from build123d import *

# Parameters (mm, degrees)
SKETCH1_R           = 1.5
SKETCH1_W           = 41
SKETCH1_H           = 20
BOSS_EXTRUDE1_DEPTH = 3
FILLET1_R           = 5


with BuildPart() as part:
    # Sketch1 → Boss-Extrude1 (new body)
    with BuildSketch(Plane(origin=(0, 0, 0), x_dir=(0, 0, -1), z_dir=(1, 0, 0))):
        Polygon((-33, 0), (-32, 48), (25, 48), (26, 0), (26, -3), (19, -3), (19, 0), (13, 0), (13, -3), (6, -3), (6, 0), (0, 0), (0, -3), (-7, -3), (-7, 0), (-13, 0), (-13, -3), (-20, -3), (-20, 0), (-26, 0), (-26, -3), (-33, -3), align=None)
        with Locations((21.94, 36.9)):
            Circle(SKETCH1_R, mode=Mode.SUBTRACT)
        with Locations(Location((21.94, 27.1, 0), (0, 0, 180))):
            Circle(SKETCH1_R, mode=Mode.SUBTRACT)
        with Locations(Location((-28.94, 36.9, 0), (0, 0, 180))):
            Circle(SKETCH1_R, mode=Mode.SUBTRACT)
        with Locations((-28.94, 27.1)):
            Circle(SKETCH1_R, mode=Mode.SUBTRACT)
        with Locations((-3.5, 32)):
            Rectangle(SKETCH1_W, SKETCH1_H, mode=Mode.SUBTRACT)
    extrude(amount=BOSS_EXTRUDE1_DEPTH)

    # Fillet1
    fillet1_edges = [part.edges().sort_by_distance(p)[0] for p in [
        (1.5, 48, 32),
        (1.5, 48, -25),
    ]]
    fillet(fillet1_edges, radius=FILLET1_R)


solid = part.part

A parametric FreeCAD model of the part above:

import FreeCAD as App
import Part
import Sketcher

V = App.Vector


def edges_at(feature, points):
    """Names of the edges that pass closest to the given points."""
    edges = feature.Shape.Edges
    near = lambda p: min(range(len(edges)), key=lambda i: edges[i].distToShape(Part.Vertex(*p))[0])
    return sorted({f"Edge{near(p) + 1}" for p in points})


def add_polygon(sketch, points):
    """Adds a closed chain of lines whose ends are joined by coincident constraints."""
    first, n = sketch.GeometryCount, len(points)
    for a, b in zip(points, points[1:] + points[:1]):
        sketch.addGeometry(Part.LineSegment(App.Vector(*a, 0), App.Vector(*b, 0)), False)
    for i in range(n):
        sketch.addConstraint(Sketcher.Constraint("Coincident", first + i, 2, first + (i + 1) % n, 1))

doc = App.newDocument("Part")
body = doc.addObject("PartDesign::Body", "Body")

sketch1 = body.newObject("Sketcher::SketchObject", "Sketch")
sketch1.AttachmentSupport = (doc.getObject("YZ_Plane"), [""])
sketch1.MapMode = "FlatFace"
add_polygon(sketch1, [(48, 32), (0, 33), (-3, 33), (-3, 26), (0, 26), (0, 20), (-3, 20), (-3, 13), (0, 13), (0, 7), (-3, 7), (-3, 0), (0, 0), (0, -6), (-3, -6), (-3, -13), (0, -13), (0, -19), (-3, -19), (-3, -26), (0, -26), (48, -25)])
sketch1.addGeometry(Part.Circle(V(27.1, -21.9, 0), V(0, 0, 1), 1.5), False)
sketch1.addGeometry(Part.Circle(V(27.1, 28.9, 0), V(0, 0, 1), 1.5), False)
sketch1.addGeometry(Part.Circle(V(36.9, -21.9, 0), V(0, 0, 1), 1.5), False)
add_polygon(sketch1, [(22, 24), (42, 24), (42, -17), (22, -17)])
sketch1.addGeometry(Part.Circle(V(36.9, 28.9, 0), V(0, 0, 1), 1.5), False)
sketch1.addConstraint([
    Sketcher.Constraint("Horizontal", 1),
    Sketcher.Constraint("Vertical", 2),
    Sketcher.Constraint("Horizontal", 3),
    Sketcher.Constraint("Vertical", 4),
    Sketcher.Constraint("Horizontal", 5),
    Sketcher.Constraint("Vertical", 6),
    Sketcher.Constraint("Horizontal", 7),
    Sketcher.Constraint("Vertical", 8),
    Sketcher.Constraint("Horizontal", 9),
    Sketcher.Constraint("Vertical", 10),
    Sketcher.Constraint("Horizontal", 11),
    Sketcher.Constraint("Vertical", 12),
    Sketcher.Constraint("Horizontal", 13),
    Sketcher.Constraint("Vertical", 14),
    Sketcher.Constraint("Horizontal", 15),
    Sketcher.Constraint("Vertical", 16),
    Sketcher.Constraint("Horizontal", 17),
    Sketcher.Constraint("Vertical", 18),
    Sketcher.Constraint("Horizontal", 19),
    Sketcher.Constraint("Vertical", 21),
    Sketcher.Constraint("Horizontal", 25),
    Sketcher.Constraint("Vertical", 26),
    Sketcher.Constraint("Horizontal", 27),
    Sketcher.Constraint("Vertical", 28),
    Sketcher.Constraint("Coincident", 11, 2, -1, 1),
    Sketcher.Constraint("Equal", 22, 23),
    Sketcher.Constraint("Equal", 23, 24),
    Sketcher.Constraint("Equal", 24, 29),
    Sketcher.Constraint("Symmetric", 7, 2, 15, 2, -1, 1),
    Sketcher.Constraint("Symmetric", 3, 2, 19, 2, -1, 1),
    Sketcher.Constraint("PointOnObject", 0, 2, -2),
    Sketcher.Constraint("PointOnObject", 3, 2, -2),
    Sketcher.Constraint("PointOnObject", 7, 2, -2),
    Sketcher.Constraint("Horizontal", 22, 3, 24, 3),
    Sketcher.Constraint("Horizontal", 23, 3, 29, 3),
    Sketcher.Constraint("Vertical", 22, 3, 23, 3),
    Sketcher.Constraint("Vertical", 24, 3, 29, 3),
    Sketcher.Constraint("Vertical", 2, 2, 5, 2),
    Sketcher.Constraint("Vertical", 6, 2, 9, 2),
    Sketcher.Constraint("Vertical", 10, 2, 13, 2),
    Sketcher.Constraint("Vertical", 14, 2, 17, 2),
    Sketcher.Constraint("Equal", 2, 6),
    Sketcher.Constraint("Equal", 4, 8),
    Sketcher.Constraint("Equal", 6, 10),
    Sketcher.Constraint("Equal", 8, 12),
    Sketcher.Constraint("Equal", 12, 16),
    Sketcher.Constraint("Equal", 0, 20),
    Sketcher.Constraint("Diameter", 22, 3.0),
    Sketcher.Constraint("DistanceX", 1, 2, 1, 1, 3.0),
    Sketcher.Constraint("DistanceX", 25, 1, 25, 2, 20.0),
    Sketcher.Constraint("DistanceY", 2, 2, 2, 1, 7.0),
    Sketcher.Constraint("DistanceY", 4, 2, 4, 1, 6.0),
    Sketcher.Constraint("DistanceY", 21, 1, 21, 2, 57.0),
    Sketcher.Constraint("DistanceY", 26, 2, 26, 1, 41.0),
    Sketcher.Constraint("DistanceX", -1, 1, 20, 2, 48.0),
    Sketcher.Constraint("DistanceX", -1, 1, 25, 2, 42.0),
    Sketcher.Constraint("DistanceY", -1, 1, 25, 2, 24.0),
    Sketcher.Constraint("DistanceX", -1, 1, 22, 3, 27.1),
    Sketcher.Constraint("DistanceX", -1, 1, 24, 3, 36.9),
    Sketcher.Constraint("DistanceY", 22, 3, -1, 1, 21.94),
    Sketcher.Constraint("DistanceY", -1, 1, 23, 3, 28.94),
])
pad1 = body.newObject("PartDesign::Pad", "Pad")
pad1.Profile = sketch1
pad1.Length = 3
doc.recompute()

fillet = body.newObject("PartDesign::Fillet", "Fillet")
fillet.Base = (pad1, edges_at(pad1, [(1.5, 48, 32), (1.5, 48, -25)]))
fillet.Radius = 5

doc.recompute()
